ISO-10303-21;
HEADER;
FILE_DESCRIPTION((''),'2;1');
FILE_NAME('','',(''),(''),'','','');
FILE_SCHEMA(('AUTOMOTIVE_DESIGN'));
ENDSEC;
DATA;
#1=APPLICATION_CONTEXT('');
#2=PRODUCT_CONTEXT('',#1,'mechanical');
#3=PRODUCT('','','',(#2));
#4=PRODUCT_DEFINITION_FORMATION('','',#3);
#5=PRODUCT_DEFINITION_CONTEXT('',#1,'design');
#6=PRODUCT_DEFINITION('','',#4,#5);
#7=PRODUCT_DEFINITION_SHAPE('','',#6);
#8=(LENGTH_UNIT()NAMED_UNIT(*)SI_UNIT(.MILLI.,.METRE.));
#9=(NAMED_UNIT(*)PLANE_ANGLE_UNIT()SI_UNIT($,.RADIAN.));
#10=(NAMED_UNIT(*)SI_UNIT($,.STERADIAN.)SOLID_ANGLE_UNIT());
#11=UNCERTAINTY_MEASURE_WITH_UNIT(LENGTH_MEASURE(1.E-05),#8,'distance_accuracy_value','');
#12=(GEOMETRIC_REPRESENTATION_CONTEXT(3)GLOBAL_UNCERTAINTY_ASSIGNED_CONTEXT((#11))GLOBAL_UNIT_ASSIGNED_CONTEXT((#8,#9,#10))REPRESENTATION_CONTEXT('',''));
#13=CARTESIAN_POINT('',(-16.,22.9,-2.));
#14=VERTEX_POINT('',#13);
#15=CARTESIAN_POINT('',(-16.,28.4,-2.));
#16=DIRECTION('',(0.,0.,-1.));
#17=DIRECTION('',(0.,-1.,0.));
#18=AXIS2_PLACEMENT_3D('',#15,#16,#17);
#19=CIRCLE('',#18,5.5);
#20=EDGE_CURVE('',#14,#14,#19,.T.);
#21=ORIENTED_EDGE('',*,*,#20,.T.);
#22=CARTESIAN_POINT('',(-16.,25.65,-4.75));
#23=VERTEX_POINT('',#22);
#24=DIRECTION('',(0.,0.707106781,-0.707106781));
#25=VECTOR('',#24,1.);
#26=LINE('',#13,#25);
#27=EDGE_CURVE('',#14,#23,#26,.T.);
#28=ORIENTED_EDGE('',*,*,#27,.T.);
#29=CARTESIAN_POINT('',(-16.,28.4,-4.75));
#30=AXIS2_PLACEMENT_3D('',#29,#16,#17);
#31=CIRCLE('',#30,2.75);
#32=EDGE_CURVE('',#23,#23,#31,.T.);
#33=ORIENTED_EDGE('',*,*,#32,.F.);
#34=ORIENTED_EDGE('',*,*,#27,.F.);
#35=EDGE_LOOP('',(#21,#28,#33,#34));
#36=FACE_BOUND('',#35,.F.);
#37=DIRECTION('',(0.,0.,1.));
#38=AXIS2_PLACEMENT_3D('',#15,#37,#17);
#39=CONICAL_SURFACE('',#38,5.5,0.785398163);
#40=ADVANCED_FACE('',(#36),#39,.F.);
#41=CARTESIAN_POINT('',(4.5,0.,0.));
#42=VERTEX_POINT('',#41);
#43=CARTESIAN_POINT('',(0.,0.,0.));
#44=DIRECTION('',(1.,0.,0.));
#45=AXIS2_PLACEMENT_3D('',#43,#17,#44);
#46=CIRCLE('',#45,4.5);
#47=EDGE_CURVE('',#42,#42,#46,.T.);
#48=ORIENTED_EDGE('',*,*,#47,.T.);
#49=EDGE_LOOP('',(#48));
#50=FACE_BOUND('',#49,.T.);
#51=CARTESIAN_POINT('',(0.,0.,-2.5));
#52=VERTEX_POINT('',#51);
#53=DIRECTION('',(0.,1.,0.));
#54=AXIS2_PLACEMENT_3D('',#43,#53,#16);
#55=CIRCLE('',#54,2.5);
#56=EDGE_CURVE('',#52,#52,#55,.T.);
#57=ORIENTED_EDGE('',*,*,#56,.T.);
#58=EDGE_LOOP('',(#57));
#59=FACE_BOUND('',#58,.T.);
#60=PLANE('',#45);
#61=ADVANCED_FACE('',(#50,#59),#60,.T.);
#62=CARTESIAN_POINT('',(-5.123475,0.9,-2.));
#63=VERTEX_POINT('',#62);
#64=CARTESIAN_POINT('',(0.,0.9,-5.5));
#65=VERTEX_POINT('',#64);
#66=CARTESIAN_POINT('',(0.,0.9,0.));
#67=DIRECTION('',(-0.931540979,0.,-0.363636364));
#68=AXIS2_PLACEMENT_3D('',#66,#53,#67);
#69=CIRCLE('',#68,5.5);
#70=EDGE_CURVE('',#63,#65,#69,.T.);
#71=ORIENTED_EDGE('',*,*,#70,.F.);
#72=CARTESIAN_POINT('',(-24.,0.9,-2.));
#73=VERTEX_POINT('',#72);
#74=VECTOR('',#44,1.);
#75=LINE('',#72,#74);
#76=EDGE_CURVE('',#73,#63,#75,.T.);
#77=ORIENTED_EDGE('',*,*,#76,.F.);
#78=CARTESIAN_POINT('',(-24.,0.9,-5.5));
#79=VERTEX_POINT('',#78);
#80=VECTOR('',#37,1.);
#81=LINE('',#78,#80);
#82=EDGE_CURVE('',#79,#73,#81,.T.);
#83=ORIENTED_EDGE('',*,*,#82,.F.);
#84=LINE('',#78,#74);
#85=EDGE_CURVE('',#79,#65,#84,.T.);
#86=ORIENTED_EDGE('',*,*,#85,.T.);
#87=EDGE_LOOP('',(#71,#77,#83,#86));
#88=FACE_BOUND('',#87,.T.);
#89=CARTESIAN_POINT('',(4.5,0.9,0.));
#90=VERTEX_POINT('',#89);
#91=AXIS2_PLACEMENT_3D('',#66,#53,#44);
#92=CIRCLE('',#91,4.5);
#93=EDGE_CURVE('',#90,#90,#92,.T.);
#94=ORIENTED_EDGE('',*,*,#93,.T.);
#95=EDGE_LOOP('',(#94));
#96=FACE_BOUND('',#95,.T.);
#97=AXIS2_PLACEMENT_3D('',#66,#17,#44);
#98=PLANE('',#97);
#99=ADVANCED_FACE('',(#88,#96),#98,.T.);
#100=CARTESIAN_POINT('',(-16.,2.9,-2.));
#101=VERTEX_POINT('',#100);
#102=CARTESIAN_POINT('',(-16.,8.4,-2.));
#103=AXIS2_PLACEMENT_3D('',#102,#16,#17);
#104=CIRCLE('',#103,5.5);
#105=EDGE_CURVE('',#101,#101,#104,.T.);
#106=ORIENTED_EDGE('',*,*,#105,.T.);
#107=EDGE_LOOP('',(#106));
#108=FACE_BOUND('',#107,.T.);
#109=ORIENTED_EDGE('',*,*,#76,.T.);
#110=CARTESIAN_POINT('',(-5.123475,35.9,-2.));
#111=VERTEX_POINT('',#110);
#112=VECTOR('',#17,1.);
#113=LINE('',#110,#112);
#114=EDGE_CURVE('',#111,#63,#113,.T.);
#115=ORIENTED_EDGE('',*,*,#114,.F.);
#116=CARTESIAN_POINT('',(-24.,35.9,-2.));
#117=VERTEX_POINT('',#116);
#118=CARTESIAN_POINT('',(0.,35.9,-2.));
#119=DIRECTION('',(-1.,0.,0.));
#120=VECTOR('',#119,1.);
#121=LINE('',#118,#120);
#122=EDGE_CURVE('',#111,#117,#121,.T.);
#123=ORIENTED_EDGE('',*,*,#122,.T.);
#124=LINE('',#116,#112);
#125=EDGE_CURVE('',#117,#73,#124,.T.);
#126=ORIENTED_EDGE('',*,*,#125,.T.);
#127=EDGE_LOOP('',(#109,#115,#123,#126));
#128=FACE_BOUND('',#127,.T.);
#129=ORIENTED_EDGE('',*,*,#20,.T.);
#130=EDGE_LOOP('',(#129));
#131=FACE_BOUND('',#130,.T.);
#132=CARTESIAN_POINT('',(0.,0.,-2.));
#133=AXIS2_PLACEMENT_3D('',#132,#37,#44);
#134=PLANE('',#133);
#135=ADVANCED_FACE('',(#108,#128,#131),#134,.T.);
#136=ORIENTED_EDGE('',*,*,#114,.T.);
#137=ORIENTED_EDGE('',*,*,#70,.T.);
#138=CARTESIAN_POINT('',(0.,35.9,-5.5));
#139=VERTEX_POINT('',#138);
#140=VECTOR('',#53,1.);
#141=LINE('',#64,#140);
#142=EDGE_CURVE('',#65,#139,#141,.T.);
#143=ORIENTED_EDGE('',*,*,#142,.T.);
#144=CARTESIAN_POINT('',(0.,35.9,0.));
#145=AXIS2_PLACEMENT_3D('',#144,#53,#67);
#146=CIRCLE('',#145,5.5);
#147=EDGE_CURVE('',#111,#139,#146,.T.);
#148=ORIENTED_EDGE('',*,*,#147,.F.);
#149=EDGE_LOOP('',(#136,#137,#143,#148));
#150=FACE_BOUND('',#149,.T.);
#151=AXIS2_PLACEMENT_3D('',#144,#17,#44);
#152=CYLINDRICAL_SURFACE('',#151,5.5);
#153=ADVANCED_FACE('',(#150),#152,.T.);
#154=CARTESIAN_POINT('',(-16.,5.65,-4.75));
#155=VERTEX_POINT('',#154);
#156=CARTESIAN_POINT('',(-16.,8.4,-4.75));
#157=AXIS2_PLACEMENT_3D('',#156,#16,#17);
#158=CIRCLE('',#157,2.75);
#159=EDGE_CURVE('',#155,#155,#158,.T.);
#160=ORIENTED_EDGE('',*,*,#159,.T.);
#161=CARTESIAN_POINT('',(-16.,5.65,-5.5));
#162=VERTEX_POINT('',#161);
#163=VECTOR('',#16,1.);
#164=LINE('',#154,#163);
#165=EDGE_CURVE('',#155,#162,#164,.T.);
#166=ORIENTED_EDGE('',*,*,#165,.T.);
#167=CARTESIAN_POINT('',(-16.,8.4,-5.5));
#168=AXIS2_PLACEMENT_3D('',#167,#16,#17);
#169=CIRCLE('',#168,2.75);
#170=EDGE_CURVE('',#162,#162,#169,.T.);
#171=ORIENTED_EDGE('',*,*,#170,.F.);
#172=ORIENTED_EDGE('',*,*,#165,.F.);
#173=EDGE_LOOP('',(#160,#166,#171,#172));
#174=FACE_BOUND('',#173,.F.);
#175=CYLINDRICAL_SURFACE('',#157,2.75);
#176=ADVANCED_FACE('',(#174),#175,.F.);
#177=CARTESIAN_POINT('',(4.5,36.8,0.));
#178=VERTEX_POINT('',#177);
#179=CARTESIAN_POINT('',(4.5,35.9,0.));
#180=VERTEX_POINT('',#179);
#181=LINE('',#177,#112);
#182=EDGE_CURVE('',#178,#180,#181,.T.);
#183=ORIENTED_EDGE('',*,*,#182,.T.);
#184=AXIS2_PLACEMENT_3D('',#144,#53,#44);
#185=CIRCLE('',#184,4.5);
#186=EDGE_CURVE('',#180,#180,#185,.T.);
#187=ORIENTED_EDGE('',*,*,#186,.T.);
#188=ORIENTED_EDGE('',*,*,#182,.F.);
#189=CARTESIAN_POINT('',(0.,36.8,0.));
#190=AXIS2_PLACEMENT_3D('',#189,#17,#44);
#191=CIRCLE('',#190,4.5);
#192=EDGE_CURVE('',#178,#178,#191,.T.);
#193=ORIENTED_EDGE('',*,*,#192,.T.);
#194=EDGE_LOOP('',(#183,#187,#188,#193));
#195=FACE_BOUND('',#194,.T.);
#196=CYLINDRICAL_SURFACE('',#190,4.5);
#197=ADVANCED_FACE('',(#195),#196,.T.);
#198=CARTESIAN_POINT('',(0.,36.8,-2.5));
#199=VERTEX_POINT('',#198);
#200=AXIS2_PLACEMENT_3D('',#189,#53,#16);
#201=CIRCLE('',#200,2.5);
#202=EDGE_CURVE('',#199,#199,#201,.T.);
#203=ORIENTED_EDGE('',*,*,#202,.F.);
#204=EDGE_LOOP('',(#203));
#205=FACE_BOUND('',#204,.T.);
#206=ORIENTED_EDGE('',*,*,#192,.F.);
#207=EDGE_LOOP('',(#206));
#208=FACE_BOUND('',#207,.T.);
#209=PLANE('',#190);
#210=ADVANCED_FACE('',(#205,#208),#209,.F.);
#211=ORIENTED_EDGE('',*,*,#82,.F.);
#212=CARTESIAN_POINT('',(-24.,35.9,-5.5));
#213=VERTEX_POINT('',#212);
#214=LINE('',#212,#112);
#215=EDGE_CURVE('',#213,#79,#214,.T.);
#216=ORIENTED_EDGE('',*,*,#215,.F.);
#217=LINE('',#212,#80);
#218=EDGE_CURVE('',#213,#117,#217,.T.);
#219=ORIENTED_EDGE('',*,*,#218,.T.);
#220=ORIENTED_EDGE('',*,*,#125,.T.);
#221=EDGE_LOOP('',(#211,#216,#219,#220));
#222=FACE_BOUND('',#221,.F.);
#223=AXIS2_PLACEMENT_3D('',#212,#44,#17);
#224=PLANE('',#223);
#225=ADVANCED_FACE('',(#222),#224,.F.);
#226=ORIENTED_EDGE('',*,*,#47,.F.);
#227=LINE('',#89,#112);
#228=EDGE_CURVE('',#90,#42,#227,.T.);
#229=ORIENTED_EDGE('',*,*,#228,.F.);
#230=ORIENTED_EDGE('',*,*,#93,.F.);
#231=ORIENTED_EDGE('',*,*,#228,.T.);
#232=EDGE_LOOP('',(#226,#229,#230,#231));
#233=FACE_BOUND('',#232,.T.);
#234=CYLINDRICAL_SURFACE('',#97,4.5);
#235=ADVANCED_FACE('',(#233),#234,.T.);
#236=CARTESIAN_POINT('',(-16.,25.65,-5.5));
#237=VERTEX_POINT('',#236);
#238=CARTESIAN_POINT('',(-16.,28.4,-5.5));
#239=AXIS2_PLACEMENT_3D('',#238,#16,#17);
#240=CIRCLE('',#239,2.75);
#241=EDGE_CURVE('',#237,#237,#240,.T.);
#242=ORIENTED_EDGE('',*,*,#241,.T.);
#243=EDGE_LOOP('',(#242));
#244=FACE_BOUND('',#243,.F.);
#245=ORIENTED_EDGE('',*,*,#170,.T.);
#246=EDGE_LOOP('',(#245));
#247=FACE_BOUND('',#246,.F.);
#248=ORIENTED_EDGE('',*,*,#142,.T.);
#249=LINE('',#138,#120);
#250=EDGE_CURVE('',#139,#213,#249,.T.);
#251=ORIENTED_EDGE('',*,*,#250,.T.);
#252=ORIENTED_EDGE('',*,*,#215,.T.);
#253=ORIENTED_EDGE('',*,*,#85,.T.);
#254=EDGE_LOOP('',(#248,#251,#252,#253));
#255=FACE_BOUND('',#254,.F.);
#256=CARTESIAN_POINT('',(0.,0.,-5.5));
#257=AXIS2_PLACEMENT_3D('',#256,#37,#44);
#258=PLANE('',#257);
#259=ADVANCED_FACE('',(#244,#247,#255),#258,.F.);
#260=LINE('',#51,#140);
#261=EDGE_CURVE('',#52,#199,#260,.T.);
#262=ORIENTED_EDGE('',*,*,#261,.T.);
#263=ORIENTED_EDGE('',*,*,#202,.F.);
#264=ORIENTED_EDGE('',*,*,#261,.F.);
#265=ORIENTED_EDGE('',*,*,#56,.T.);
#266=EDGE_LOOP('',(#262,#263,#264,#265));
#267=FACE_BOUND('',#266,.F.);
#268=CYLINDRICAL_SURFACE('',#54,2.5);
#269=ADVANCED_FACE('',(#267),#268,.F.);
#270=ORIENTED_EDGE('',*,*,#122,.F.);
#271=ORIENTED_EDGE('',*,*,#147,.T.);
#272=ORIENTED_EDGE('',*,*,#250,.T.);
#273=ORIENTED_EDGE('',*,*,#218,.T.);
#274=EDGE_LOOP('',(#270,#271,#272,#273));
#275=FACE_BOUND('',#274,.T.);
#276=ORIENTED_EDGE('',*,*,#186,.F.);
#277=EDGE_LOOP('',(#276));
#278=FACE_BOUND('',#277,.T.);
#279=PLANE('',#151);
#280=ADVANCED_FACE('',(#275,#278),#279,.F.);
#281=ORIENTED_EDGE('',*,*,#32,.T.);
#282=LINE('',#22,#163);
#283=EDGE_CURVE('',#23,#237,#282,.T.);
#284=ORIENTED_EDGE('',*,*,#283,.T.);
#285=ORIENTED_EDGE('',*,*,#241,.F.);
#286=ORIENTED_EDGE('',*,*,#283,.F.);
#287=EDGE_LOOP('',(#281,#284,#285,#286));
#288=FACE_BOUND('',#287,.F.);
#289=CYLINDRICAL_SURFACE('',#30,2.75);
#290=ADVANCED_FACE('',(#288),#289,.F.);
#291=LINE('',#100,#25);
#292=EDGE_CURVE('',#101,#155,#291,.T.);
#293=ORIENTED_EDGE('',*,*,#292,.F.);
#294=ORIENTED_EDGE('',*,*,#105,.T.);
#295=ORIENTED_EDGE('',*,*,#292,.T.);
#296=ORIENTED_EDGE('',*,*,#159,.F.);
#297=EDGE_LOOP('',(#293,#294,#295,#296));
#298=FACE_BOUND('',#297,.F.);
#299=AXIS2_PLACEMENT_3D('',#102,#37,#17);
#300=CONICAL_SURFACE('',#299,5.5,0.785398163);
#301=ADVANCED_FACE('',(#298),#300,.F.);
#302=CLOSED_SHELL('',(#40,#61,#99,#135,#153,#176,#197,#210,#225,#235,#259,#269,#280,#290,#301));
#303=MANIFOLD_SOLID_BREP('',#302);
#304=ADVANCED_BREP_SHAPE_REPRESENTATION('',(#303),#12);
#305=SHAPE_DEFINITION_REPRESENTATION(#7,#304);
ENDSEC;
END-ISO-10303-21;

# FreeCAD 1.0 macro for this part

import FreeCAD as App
import Part
import Sketcher
Q = App.Units.Quantity

doc = App.newDocument("Part")
body = doc.addObject("PartDesign::Body", "Body")

# Sketch on XY plane
sketch1 = body.newObject("Sketcher::SketchObject", "Sketch")
sketch1.AttachmentSupport = (doc.getObject("XY_Plane"), [""])
sketch1.MapMode = "FlatFace"
sketch1.addGeometry([
    Part.LineSegment(App.Vector(0, 36.8, 0), App.Vector(0, 0, 0)),  # 0
    Part.LineSegment(App.Vector(0, 0, 0), App.Vector(4.5, 0, 0)),  # 1
    Part.LineSegment(App.Vector(4.5, 0, 0), App.Vector(4.5, 0.9, 0)),  # 2
    Part.LineSegment(App.Vector(4.5, 0.9, 0), App.Vector(5.5, 0.9, 0)),  # 3
    Part.LineSegment(App.Vector(5.5, 0.9, 0), App.Vector(5.5, 35.9, 0)),  # 4
    Part.LineSegment(App.Vector(5.5, 35.9, 0), App.Vector(4.5, 35.9, 0)),  # 5
    Part.LineSegment(App.Vector(4.5, 35.9, 0), App.Vector(4.5, 36.8, 0)),  # 6
    Part.LineSegment(App.Vector(4.5, 36.8, 0), App.Vector(0, 36.8, 0)),  # 7
], False)
sketch1.addConstraint([
    Sketcher.Constraint("Coincident", 0, 2, 1, 1),
    Sketcher.Constraint("Coincident", 1, 2, 2, 1),
    Sketcher.Constraint("Coincident", 2, 2, 3, 1),
    Sketcher.Constraint("Coincident", 3, 2, 4, 1),
    Sketcher.Constraint("Coincident", 4, 2, 5, 1),
    Sketcher.Constraint("Coincident", 5, 2, 6, 1),
    Sketcher.Constraint("Coincident", 6, 2, 7, 1),
    Sketcher.Constraint("Coincident", 7, 2, 0, 1),
    Sketcher.Constraint("Vertical", 0),
    Sketcher.Constraint("Horizontal", 1),
    Sketcher.Constraint("Vertical", 2),
    Sketcher.Constraint("Horizontal", 3),
    Sketcher.Constraint("Vertical", 4),
    Sketcher.Constraint("Horizontal", 5),
    Sketcher.Constraint("Vertical", 6),
    Sketcher.Constraint("Horizontal", 7),
    Sketcher.Constraint("Coincident", 0, 2, -1, 1),
    Sketcher.Constraint("Vertical", 2, 2, 5, 2),
    Sketcher.Constraint("Equal", 2, 6),
    Sketcher.Constraint("DistanceX", 3, 1, 3, 2, Q("1 mm")),
    Sketcher.Constraint("DistanceY", 4, 1, 4, 2, Q("35 mm")),
    Sketcher.Constraint("DistanceX", 1, 1, 1, 2, Q("4.5 mm")),
    Sketcher.Constraint("DistanceY", 0, 2, 0, 1, Q("36.8 mm")),
])
revolution = body.newObject("PartDesign::Revolution", "Revolution")
revolution.Profile = sketch1
revolution.ReferenceAxis = (sketch1, ["V_Axis"])
revolution.Angle = 360

# Sketch on XY plane
sketch2 = body.newObject("Sketcher::SketchObject", "Sketch001")
sketch2.AttachmentSupport = (doc.getObject("XY_Plane"), [""])
sketch2.MapMode = "FlatFace"
sketch2.AttachmentOffset = App.Placement(App.Vector(0, 0, -5.5), App.Rotation())
sketch2.addGeometry([
    Part.LineSegment(App.Vector(0, 36, 0), App.Vector(-24, 36, 0)),
    Part.LineSegment(App.Vector(-24, 36, 0), App.Vector(-24, 1, 0)),
    Part.LineSegment(App.Vector(-24, 1, 0), App.Vector(0, 1, 0)),
    Part.LineSegment(App.Vector(0, 1, 0), App.Vector(0, 36, 0)),
], False)
sketch2.addConstraint([
    Sketcher.Constraint("Coincident", 0, 2, 1, 1),
    Sketcher.Constraint("Coincident", 1, 2, 2, 1),
    Sketcher.Constraint("Coincident", 2, 2, 3, 1),
    Sketcher.Constraint("Coincident", 3, 2, 0, 1),
    Sketcher.Constraint("Horizontal", 0),
    Sketcher.Constraint("Vertical", 1),
    Sketcher.Constraint("Horizontal", 2),
    Sketcher.Constraint("Vertical", 3),
    Sketcher.Constraint("PointOnObject", 2, 2, -2),
    Sketcher.Constraint("DistanceX", 0, 2, 0, 1, Q("24 mm")),
    Sketcher.Constraint("DistanceY", 1, 2, 1, 1, Q("35 mm")),
    Sketcher.Constraint("DistanceY", -1, 1, 0, 2, Q("35.9 mm")),
])
pad1 = body.newObject("PartDesign::Pad", "Pad")
pad1.Profile = sketch2
pad1.Length = 3.5

# Sketch on XY plane
sketch3 = body.newObject("Sketcher::SketchObject", "Sketch002")
sketch3.AttachmentSupport = (doc.getObject("XY_Plane"), [""])
sketch3.MapMode = "FlatFace"
sketch3.AttachmentOffset = App.Placement(App.Vector(0, 0, -2), App.Rotation())
sketch3.addGeometry(Part.Circle(App.Vector(-16, 8.4, 0), App.Vector(0, 0, 1), 2.8), False)
sketch3.addConstraint([
    Sketcher.Constraint("Diameter", 0, Q("5.5 mm")),
    Sketcher.Constraint("DistanceX", 0, 3, -1, 1, Q("16 mm")),
    Sketcher.Constraint("DistanceY", -1, 1, 0, 3, Q("8.4 mm")),
])
doc.recompute()
hole = body.newObject("PartDesign::Hole", "Hole")
hole.Profile = sketch3
hole.ThreadType = "None"
hole.Diameter = 5.5
hole.DepthType = "Dimension"
hole.Depth = 3.5
hole.DrillPoint = "Flat"
hole.HoleCutType = "Countersink"
hole.HoleCutDiameter = 11
hole.HoleCutCountersinkAngle = 90

# Sketch on XY plane
sketch4 = body.newObject("Sketcher::SketchObject", "Sketch003")
sketch4.AttachmentSupport = (doc.getObject("XY_Plane"), [""])
sketch4.MapMode = "FlatFace"
sketch4.AttachmentOffset = App.Placement(App.Vector(0, 0, -2), App.Rotation())
sketch4.addGeometry(Part.Circle(App.Vector(-16, 28.4, 0), App.Vector(0, 0, 1), 2.8), False)
sketch4.addConstraint([
    Sketcher.Constraint("Diameter", 0, Q("5.5 mm")),
    Sketcher.Constraint("DistanceX", 0, 3, -1, 1, Q("16 mm")),
    Sketcher.Constraint("DistanceY", -1, 1, 0, 3, Q("28.4 mm")),
])
doc.recompute()
hole2 = body.newObject("PartDesign::Hole", "Hole001")
hole2.Profile = sketch4
hole2.ThreadType = "None"
hole2.Diameter = 5.5
hole2.DepthType = "Dimension"
hole2.Depth = 3.5
hole2.DrillPoint = "Flat"
hole2.HoleCutType = "Countersink"
hole2.HoleCutDiameter = 11
hole2.HoleCutCountersinkAngle = 90

# Sketch on XZ plane
sketch5 = body.newObject("Sketcher::SketchObject", "Sketch004")
sketch5.AttachmentSupport = (doc.getObject("XZ_Plane"), [""])
sketch5.MapMode = "FlatFace"
sketch5.addGeometry(Part.Circle(App.Vector(0, 0, 0), App.Vector(0, 0, 1), 2.5), False)
sketch5.addConstraint([
    Sketcher.Constraint("Coincident", 0, 3, -1, 1),
    Sketcher.Constraint("Diameter", 0, Q("5 mm")),
])
doc.recompute()
hole3 = body.newObject("PartDesign::Hole", "Hole002")
hole3.Profile = sketch5
hole3.ThreadType = "None"
hole3.Diameter = 5
hole3.DepthType = "Dimension"
hole3.Depth = 36.8
hole3.DrillPoint = "Flat"

doc.recompute()
